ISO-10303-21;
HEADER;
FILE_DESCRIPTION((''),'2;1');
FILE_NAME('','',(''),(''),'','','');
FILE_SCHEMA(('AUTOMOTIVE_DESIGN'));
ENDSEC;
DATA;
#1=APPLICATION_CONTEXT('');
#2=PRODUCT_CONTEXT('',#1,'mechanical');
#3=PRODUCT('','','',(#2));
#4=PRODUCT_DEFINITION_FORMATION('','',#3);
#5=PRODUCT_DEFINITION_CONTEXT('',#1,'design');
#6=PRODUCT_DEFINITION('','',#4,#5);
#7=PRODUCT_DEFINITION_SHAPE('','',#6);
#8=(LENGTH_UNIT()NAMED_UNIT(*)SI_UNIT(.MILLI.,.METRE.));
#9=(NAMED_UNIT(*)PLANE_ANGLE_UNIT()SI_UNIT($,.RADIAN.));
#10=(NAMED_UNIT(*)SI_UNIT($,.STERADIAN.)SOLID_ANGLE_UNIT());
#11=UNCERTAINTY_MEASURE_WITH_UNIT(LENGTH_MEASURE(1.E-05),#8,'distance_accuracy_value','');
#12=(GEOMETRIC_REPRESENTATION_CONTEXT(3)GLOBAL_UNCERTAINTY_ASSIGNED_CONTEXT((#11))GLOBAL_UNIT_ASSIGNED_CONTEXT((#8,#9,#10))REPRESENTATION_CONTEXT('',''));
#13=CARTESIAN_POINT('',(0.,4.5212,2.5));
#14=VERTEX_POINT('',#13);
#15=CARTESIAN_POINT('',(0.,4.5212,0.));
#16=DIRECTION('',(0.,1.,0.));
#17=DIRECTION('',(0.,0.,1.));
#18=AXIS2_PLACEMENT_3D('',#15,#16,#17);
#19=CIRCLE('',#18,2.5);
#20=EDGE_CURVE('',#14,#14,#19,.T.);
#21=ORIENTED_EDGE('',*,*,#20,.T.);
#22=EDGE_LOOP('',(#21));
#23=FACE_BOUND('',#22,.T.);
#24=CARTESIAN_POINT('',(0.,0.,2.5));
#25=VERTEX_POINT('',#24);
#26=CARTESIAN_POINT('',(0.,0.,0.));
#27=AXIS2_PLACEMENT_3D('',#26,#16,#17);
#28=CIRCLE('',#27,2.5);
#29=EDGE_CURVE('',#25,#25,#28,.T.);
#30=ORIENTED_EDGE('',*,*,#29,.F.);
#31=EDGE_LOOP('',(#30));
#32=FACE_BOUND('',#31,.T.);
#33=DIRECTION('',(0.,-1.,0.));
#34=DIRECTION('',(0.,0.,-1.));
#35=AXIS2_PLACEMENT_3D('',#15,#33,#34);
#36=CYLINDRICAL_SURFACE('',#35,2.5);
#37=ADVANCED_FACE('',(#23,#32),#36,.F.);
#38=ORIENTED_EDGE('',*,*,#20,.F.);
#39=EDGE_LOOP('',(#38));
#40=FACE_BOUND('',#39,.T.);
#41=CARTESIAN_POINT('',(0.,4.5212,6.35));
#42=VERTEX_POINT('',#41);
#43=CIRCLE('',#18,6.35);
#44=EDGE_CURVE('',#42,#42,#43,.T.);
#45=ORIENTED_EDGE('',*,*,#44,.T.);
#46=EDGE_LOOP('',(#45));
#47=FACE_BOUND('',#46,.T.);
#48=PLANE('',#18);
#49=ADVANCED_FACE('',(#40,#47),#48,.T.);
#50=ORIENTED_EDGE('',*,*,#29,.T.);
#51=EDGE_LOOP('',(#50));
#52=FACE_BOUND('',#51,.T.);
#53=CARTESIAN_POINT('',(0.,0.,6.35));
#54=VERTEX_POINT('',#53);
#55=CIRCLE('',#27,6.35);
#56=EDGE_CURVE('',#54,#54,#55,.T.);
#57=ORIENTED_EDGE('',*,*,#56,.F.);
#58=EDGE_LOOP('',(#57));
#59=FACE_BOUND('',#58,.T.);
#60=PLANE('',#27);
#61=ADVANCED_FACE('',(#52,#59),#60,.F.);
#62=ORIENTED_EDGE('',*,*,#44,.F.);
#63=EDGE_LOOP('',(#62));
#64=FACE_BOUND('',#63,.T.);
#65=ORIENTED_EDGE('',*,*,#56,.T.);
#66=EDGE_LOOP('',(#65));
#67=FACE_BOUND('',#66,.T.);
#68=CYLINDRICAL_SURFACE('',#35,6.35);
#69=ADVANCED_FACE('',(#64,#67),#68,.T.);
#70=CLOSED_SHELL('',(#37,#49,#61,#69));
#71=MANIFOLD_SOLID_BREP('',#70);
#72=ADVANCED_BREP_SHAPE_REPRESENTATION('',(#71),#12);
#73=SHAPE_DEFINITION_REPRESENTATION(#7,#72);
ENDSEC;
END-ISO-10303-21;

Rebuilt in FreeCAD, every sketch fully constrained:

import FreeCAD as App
import Part
import Sketcher

V = App.Vector
Q = App.Units.Quantity

doc = App.newDocument("Part")
body = doc.addObject("PartDesign::Body", "Body")

sketch1 = body.newObject("Sketcher::SketchObject", "Sketch")
sketch1.AttachmentSupport = (doc.getObject("XZ_Plane"), [""])
sketch1.MapMode = "FlatFace"
sketch1.addGeometry([
    Part.Circle(V(0, 0, 0), V(0, 0, 1), 6.3),
    Part.Circle(V(0, 0, 0), V(0, 0, 1), 2.5),
], False)
sketch1.addConstraint([
    Sketcher.Constraint("Coincident", 0, 3, -1, 1),
    Sketcher.Constraint("Coincident", 1, 3, -1, 1),
    Sketcher.Constraint("Diameter", 0, Q("0.5 in")),
    Sketcher.Constraint("Diameter", 1, Q("5 mm")),
])
pad1 = body.newObject("PartDesign::Pad", "Pad")
pad1.Profile = sketch1
pad1.Length = Q("0.178 in")
pad1.Reversed = True

doc.recompute()
